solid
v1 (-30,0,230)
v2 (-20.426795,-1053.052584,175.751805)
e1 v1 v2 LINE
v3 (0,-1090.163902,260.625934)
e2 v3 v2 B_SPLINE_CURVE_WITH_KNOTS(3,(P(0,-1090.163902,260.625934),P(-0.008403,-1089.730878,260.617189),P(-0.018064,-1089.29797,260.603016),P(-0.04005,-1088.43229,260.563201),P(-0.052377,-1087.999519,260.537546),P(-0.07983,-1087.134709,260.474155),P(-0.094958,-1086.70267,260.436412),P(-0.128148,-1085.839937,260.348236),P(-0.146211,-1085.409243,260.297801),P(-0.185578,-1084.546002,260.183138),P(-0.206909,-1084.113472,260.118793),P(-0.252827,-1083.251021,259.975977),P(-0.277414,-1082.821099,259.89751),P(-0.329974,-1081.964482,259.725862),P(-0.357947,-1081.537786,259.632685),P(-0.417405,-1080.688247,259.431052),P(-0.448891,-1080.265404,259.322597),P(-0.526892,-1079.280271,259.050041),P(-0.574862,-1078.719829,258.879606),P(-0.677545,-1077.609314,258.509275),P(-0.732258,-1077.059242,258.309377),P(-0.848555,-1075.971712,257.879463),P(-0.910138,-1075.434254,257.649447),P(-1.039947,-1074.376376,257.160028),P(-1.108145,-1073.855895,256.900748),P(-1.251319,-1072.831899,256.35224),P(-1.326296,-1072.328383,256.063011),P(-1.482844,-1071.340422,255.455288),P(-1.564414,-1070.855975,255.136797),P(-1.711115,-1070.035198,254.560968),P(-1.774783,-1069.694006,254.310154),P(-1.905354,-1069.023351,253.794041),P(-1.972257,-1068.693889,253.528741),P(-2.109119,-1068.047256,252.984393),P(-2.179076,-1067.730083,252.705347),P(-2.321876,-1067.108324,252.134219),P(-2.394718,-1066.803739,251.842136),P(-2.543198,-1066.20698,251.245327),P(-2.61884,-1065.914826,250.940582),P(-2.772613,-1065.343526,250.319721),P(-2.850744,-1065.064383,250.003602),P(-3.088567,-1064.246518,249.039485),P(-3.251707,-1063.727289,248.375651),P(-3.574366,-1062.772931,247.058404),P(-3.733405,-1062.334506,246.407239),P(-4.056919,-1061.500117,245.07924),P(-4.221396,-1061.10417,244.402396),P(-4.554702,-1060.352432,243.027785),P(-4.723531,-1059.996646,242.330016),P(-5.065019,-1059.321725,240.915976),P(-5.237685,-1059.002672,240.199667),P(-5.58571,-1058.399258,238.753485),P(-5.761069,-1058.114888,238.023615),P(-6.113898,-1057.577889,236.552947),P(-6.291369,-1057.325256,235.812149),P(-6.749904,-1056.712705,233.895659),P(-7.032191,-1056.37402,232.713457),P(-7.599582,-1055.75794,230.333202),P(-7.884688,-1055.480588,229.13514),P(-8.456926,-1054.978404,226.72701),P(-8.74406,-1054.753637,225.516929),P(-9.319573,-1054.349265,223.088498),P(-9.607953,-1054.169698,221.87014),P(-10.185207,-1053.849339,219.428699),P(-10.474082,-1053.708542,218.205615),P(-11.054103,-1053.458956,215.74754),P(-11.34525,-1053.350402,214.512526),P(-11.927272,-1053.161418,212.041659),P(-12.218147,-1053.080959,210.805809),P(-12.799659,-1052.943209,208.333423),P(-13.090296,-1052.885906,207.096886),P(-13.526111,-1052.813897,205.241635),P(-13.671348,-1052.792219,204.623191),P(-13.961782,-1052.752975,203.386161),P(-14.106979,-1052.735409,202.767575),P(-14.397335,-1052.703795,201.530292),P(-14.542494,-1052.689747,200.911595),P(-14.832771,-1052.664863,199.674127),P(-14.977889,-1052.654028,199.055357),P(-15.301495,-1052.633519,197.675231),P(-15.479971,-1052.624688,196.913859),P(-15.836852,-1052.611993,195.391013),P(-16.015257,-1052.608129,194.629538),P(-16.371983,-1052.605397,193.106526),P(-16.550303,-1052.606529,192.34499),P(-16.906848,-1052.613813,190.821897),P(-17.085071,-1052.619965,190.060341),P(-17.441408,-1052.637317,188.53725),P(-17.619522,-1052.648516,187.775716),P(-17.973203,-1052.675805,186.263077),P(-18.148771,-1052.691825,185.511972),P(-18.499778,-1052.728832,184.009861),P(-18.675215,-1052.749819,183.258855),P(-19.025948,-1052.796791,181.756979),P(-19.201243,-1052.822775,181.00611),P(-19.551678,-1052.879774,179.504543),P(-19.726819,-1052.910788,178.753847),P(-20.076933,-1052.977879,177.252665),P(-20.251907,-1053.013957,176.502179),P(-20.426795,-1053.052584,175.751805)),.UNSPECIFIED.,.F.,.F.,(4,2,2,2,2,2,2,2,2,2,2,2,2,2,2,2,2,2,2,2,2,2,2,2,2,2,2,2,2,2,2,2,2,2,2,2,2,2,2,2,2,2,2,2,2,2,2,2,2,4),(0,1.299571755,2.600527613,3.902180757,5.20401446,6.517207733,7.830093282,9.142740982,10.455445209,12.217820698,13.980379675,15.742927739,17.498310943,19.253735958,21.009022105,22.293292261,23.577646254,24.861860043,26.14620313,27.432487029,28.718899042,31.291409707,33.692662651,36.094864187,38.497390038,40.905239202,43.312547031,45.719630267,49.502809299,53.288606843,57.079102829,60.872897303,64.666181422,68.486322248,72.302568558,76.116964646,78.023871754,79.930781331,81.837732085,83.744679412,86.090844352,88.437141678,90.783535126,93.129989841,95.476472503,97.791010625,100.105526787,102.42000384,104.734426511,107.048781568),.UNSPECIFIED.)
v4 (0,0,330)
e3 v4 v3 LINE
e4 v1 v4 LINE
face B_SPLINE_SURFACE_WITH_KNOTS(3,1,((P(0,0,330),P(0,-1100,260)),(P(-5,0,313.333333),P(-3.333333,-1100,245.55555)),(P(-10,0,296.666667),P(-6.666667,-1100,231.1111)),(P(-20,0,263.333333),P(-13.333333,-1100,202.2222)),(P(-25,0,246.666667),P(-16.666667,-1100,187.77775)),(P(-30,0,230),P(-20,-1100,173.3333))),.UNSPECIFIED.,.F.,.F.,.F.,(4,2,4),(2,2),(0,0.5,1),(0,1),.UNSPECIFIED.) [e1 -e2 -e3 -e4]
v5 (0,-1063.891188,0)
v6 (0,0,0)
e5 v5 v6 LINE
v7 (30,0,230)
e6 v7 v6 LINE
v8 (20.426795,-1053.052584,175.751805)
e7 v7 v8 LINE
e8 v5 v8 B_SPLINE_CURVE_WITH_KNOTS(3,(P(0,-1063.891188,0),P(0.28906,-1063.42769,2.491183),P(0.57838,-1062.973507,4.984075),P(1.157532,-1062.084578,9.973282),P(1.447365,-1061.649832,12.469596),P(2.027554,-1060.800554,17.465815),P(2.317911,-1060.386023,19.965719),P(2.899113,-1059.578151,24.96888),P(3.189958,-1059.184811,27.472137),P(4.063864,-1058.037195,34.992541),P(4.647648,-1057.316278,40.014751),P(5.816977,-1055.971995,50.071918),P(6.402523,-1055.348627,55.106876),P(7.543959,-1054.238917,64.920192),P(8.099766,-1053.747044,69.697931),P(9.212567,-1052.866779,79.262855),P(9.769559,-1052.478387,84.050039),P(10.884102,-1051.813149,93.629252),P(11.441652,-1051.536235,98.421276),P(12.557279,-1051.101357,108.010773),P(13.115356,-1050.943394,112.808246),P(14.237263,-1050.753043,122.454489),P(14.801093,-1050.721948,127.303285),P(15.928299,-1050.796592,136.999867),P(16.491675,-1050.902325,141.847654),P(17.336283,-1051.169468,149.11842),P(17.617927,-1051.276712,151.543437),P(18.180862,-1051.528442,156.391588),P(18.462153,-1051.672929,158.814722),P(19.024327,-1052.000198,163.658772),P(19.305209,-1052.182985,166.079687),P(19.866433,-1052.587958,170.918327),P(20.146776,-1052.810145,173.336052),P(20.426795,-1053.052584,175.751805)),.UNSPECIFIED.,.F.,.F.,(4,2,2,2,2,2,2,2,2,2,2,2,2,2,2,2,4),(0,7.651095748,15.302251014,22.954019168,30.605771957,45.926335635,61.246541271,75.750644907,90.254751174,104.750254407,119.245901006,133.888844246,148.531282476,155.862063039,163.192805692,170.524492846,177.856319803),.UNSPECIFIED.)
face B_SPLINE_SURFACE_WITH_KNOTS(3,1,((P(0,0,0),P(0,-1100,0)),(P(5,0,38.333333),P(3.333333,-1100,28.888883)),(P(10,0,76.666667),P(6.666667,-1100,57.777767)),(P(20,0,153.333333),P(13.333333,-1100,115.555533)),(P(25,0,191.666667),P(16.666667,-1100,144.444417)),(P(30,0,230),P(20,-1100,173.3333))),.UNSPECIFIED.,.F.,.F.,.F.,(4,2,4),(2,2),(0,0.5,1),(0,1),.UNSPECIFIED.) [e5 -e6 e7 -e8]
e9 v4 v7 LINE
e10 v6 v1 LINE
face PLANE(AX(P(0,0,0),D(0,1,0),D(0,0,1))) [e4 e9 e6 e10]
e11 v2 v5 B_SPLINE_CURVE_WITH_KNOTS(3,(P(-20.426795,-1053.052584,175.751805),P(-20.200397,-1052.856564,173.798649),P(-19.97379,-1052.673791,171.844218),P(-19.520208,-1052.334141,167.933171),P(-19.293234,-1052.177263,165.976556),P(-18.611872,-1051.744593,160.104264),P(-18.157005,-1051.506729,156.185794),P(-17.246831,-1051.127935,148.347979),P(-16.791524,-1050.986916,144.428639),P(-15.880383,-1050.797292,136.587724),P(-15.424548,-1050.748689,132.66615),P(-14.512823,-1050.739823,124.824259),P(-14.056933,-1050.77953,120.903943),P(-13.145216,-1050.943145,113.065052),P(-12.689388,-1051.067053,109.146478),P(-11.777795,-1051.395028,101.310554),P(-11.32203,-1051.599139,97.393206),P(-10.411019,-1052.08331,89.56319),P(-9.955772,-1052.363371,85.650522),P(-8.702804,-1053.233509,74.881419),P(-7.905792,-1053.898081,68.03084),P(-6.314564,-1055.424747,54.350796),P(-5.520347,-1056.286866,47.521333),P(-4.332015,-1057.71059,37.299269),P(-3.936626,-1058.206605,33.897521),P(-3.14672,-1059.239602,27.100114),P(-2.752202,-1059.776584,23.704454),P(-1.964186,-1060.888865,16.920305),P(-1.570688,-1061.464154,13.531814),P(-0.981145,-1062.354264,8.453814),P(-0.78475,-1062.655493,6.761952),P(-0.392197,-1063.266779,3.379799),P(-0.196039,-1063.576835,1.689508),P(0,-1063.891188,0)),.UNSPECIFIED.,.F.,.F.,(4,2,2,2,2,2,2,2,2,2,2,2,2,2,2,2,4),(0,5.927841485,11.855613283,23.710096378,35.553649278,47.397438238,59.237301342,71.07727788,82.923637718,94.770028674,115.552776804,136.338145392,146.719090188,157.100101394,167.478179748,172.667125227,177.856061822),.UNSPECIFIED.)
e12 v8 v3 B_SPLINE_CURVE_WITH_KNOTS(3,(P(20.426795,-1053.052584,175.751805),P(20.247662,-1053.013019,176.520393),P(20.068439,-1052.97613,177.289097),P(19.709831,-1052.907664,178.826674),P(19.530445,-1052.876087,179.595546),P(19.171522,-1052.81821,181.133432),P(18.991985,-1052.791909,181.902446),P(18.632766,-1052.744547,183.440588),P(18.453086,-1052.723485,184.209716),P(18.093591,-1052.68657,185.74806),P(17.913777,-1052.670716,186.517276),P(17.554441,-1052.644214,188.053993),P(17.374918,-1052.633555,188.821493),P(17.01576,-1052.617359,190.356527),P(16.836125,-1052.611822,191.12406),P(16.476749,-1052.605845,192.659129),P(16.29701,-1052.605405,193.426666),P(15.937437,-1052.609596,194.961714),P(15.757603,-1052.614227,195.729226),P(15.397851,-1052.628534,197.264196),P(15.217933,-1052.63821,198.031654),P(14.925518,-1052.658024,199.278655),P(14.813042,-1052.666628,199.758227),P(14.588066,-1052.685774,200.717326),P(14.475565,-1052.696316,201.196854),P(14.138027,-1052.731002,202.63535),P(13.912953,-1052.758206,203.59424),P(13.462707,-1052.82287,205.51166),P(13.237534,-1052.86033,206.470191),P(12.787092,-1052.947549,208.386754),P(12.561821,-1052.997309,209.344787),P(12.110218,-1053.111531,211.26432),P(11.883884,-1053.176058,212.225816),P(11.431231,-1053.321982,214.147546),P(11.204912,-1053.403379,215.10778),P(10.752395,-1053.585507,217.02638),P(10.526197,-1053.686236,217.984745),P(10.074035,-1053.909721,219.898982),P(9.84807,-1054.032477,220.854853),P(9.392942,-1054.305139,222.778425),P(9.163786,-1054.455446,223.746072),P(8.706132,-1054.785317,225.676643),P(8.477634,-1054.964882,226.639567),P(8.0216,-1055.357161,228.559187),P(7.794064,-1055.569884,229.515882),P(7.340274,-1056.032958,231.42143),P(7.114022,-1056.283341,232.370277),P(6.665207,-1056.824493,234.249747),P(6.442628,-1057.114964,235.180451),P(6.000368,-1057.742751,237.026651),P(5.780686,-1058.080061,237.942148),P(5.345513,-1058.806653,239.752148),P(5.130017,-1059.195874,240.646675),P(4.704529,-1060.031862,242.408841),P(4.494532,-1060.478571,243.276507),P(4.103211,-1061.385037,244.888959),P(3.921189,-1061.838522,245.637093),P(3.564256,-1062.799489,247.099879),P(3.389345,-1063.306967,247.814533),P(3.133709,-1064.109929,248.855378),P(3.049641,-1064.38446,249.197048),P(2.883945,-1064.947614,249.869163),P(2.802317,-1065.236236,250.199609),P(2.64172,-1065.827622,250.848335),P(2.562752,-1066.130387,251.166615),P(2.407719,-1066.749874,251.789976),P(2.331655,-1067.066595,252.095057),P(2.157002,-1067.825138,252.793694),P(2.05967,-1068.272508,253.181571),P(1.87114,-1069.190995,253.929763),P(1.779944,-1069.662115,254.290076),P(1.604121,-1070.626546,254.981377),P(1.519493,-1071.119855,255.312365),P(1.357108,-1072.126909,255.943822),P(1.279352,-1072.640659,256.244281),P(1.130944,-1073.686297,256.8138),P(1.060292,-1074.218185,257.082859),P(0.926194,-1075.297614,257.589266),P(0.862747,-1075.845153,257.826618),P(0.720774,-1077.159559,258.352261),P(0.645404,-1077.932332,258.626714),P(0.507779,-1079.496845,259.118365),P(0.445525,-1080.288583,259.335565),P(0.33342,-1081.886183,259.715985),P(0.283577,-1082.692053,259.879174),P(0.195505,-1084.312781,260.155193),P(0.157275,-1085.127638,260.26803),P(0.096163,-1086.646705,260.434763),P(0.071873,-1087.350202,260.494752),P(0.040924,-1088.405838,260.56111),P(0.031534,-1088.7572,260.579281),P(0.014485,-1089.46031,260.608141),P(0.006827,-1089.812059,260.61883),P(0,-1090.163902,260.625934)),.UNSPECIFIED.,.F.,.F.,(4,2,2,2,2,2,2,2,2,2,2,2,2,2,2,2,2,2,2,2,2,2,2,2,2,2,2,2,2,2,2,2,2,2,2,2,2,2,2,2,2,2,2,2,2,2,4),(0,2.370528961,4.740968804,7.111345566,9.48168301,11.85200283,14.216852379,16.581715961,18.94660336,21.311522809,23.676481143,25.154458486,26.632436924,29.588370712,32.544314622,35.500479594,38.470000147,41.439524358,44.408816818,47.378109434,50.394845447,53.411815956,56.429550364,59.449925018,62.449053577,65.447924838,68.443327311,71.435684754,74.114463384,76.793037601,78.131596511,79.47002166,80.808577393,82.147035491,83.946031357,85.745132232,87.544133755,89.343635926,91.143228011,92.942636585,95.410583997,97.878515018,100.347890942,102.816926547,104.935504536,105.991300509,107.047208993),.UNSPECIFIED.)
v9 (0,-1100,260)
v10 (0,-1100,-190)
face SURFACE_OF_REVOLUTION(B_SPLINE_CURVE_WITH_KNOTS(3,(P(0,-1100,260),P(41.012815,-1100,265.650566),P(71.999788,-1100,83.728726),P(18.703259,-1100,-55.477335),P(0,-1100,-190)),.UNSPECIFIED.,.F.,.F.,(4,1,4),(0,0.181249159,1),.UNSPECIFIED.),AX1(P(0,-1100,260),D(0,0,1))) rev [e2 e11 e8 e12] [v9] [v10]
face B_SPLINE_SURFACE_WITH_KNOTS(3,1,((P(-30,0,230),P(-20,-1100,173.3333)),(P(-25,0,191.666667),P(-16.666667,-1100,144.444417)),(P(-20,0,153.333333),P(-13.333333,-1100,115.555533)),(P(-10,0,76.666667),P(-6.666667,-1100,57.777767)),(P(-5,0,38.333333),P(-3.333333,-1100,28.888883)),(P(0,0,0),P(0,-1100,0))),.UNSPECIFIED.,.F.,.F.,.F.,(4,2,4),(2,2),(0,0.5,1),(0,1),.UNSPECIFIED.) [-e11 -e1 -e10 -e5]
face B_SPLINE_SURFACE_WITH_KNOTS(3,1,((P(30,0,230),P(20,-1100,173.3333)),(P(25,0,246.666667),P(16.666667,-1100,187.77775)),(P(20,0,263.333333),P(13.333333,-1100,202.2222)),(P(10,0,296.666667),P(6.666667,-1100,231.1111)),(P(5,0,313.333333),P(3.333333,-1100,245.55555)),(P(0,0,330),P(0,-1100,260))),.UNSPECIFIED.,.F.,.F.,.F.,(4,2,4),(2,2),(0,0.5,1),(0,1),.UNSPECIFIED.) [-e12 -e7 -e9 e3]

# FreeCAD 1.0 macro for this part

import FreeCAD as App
import Part
import Sketcher
from FreeCAD import Vector


def add_polygon(sketch, points):
    """Adds a closed chain of lines whose ends are joined by coincident constraints."""
    first, n = sketch.GeometryCount, len(points)
    for a, b in zip(points, points[1:] + points[:1]):
        sketch.addGeometry(Part.LineSegment(App.Vector(*a, 0), App.Vector(*b, 0)), False)
    for i in range(n):
        sketch.addConstraint(Sketcher.Constraint("Coincident", first + i, 2, first + (i + 1) % n, 1))

doc = App.newDocument("Part")
body = doc.addObject("PartDesign::Body", "Body")

# Sketch on XZ plane
sketch1 = body.newObject("Sketcher::SketchObject", "Sketch")
sketch1.AttachmentSupport = (doc.getObject("XZ_Plane"), [""])
sketch1.MapMode = "FlatFace"
add_polygon(sketch1, [(0, 330), (30, 230), (0, 0), (-30, 230)])  # lines 0-3
sketch1.addConstraint([
    Sketcher.Constraint("Coincident", 1, 2, -1, 1),
    Sketcher.Constraint("Symmetric", 0, 2, 2, 2, -2),
    Sketcher.Constraint("PointOnObject", 3, 2, -2),
    Sketcher.Constraint("DistanceX", -1, 1, 0, 2, 30.0),
    Sketcher.Constraint("DistanceY", -1, 1, 0, 2, 230.0),
    Sketcher.Constraint("DistanceY", -1, 1, 3, 2, 330.0),
])

# Sketch on XZ plane
sketch2 = body.newObject("Sketcher::SketchObject", "Sketch001")
sketch2.AttachmentSupport = (doc.getObject("XZ_Plane"), [""])
sketch2.MapMode = "FlatFace"
sketch2.AttachmentOffset = App.Placement(Vector(0, 0, 1100), App.Rotation())
add_polygon(sketch2, [(20, 173), (0, 0), (-20, 173), (0, 260)])  # lines 0-3
sketch2.addConstraint([
    Sketcher.Constraint("Coincident", 0, 2, -1, 1),
    Sketcher.Constraint("Symmetric", 1, 2, 3, 2, -2),
    Sketcher.Constraint("PointOnObject", 2, 2, -2),
    Sketcher.Constraint("DistanceX", 1, 2, -1, 1, 20.0),
    Sketcher.Constraint("DistanceY", -1, 1, 2, 2, 260.0),
    Sketcher.Constraint("DistanceY", -1, 1, 1, 2, 173.3333),
])

additiveloft = body.newObject("PartDesign::AdditiveLoft", "AdditiveLoft")
additiveloft.Profile = sketch1
additiveloft.Sections = [sketch2]

# Sketch on XZ plane
sketch3 = body.newObject("Sketcher::SketchObject", "Sketch002")
sketch3.AttachmentSupport = (doc.getObject("XZ_Plane"), [""])
sketch3.MapMode = "FlatFace"
sketch3.AttachmentOffset = App.Placement(Vector(0, 0, 1100), App.Rotation())
sketch3.addGeometry([
    Part.LineSegment(Vector(0, -190, 0), Vector(0, 260, 0)),
    Part.BSplineCurve([Vector(0, 260, 0), Vector(41.012815, 265.650566, 0), Vector(71.999788, 83.728726, 0), Vector(18.703259, -55.477335, 0), Vector(0, -190, 0)], [4, 1, 4], [0, 0.181249159, 1], False, 3, [1, 1, 1, 1, 1], False),
], False)
sketch3.addConstraint([
    Sketcher.Constraint("Block", 1),
    Sketcher.Constraint("Coincident", 0, 1, 1, 2),
    Sketcher.Constraint("Coincident", 1, 1, 0, 2),
])
revolution = body.newObject("PartDesign::Revolution", "Revolution")
revolution.Profile = sketch3
revolution.ReferenceAxis = (sketch3, ["V_Axis"])
revolution.Angle = 360

doc.recompute()
